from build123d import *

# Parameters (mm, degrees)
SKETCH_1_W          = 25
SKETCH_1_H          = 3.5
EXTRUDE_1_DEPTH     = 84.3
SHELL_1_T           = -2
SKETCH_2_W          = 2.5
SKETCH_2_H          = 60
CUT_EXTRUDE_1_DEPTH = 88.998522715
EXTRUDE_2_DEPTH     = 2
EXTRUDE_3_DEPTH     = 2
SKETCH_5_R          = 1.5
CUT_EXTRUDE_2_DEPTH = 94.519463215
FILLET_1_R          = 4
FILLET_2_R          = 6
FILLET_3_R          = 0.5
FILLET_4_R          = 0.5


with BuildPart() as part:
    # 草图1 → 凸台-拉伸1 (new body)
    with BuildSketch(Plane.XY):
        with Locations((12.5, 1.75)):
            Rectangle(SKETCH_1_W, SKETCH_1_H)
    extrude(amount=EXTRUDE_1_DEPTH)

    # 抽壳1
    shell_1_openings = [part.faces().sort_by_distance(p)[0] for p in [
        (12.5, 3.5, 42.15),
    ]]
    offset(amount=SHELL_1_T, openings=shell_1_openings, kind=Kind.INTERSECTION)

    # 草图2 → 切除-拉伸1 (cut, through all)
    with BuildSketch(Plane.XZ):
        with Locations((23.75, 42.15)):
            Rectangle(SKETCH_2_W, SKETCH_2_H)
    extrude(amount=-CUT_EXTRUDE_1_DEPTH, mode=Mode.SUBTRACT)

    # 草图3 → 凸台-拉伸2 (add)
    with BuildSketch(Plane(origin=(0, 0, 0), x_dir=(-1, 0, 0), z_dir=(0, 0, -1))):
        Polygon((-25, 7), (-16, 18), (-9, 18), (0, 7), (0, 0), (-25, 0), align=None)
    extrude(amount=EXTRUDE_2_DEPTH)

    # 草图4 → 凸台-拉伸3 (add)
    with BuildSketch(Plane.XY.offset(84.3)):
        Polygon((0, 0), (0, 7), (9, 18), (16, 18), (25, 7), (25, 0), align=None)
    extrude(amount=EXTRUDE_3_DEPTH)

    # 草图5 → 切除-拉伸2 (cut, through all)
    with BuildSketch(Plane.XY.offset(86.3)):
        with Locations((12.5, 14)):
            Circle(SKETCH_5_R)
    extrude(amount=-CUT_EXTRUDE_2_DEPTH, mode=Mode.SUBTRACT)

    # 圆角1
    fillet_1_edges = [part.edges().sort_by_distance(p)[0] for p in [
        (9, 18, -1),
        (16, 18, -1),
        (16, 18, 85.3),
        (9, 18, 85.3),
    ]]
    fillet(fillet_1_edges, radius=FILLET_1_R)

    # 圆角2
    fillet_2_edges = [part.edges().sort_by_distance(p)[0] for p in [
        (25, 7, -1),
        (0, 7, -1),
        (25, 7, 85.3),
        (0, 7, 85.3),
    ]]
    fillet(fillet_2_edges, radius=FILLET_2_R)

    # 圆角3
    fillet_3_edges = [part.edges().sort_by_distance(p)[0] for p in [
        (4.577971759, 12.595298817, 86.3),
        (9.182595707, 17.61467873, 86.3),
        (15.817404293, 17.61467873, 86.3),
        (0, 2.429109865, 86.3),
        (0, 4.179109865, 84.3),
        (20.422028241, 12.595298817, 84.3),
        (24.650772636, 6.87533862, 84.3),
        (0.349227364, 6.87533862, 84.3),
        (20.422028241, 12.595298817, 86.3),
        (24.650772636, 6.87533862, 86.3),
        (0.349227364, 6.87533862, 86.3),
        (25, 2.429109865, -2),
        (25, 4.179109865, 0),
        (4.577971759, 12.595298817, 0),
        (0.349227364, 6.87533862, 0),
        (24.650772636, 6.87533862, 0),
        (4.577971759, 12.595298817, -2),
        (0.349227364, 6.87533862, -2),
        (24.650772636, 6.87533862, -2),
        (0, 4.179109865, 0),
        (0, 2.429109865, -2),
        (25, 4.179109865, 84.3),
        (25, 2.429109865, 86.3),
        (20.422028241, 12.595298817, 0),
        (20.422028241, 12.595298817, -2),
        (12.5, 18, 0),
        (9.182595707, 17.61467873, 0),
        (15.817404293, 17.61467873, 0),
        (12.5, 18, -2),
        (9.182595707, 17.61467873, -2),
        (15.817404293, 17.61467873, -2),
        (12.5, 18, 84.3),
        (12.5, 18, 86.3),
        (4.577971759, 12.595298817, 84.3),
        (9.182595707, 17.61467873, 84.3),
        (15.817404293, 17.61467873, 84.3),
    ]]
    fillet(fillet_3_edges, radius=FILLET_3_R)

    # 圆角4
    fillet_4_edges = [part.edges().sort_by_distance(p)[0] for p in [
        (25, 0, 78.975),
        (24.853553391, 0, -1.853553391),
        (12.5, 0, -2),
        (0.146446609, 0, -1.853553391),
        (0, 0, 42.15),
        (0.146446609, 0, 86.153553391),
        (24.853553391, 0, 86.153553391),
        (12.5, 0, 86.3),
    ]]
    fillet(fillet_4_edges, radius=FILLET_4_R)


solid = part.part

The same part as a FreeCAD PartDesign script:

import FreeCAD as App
import Part
import Sketcher
from FreeCAD import Vector


def edges_at(feature, points):
    """Names of the edges that pass closest to the given points."""
    edges = feature.Shape.Edges
    near = lambda p: min(range(len(edges)), key=lambda i: edges[i].distToShape(Part.Vertex(*p))[0])
    return sorted({f"Edge{near(p) + 1}" for p in points})


def faces_at(feature, points):
    """Names of the faces that lie closest to the given points."""
    faces = feature.Shape.Faces
    near = lambda p: min(range(len(faces)), key=lambda i: faces[i].distToShape(Part.Vertex(*p))[0])
    return sorted({f"Face{near(p) + 1}" for p in points})

doc = App.newDocument("Part")
body = doc.addObject("PartDesign::Body", "Body")

# Sketch on XY plane
sketch1 = doc.addObject("Sketcher::SketchObject", "Sketch")
body.addObject(sketch1)
sketch1.AttachmentSupport = (doc.XY_Plane, [""])
sketch1.MapMode = "FlatFace"
sketch1.addGeometry([
    Part.LineSegment(Vector(0, 3.5, 0), Vector(0, 0, 0)),
    Part.LineSegment(Vector(0, 0, 0), Vector(25, 0, 0)),
    Part.LineSegment(Vector(25, 0, 0), Vector(25, 3.5, 0)),
    Part.LineSegment(Vector(25, 3.5, 0), Vector(0, 3.5, 0)),
], False)
sketch1.addConstraint([
    Sketcher.Constraint("Coincident", 0, 2, 1, 1),
    Sketcher.Constraint("Coincident", 1, 2, 2, 1),
    Sketcher.Constraint("Coincident", 2, 2, 3, 1),
    Sketcher.Constraint("Coincident", 3, 2, 0, 1),
    Sketcher.Constraint("Vertical", 0),
    Sketcher.Constraint("Horizontal", 1),
    Sketcher.Constraint("Vertical", 2),
    Sketcher.Constraint("Horizontal", 3),
    Sketcher.Constraint("Coincident", 0, 2, -1, 1),
    Sketcher.Constraint("DistanceX", 1, 1, 1, 2, 25.0),
    Sketcher.Constraint("DistanceY", 0, 2, 0, 1, 3.5),
])
pad1 = doc.addObject("PartDesign::Pad", "Pad")
body.addObject(pad1)
pad1.Profile = sketch1
pad1.Length = 84.3
doc.recompute()

thickness = doc.addObject("PartDesign::Thickness", "Thickness")
body.addObject(thickness)
thickness.Base = (pad1, faces_at(pad1, [(12.5, 3.5, 42.15)]))
thickness.Value = 2
thickness.Reversed = True
thickness.Join = "Intersection"

# Sketch on XZ plane
sketch2 = doc.addObject("Sketcher::SketchObject", "Sketch001")
body.addObject(sketch2)
sketch2.AttachmentSupport = (doc.XZ_Plane, [""])
sketch2.MapMode = "FlatFace"
sketch2.addGeometry([
    Part.LineSegment(Vector(22.5, 72.2, 0), Vector(22.5, 12.2, 0)),
    Part.LineSegment(Vector(22.5, 12.2, 0), Vector(25, 12.2, 0)),
    Part.LineSegment(Vector(25, 12.2, 0), Vector(25, 72.2, 0)),
    Part.LineSegment(Vector(25, 72.2, 0), Vector(22.5, 72.2, 0)),
], False)
sketch2.addConstraint([
    Sketcher.Constraint("Coincident", 0, 2, 1, 1),
    Sketcher.Constraint("Coincident", 1, 2, 2, 1),
    Sketcher.Constraint("Coincident", 2, 2, 3, 1),
    Sketcher.Constraint("Coincident", 3, 2, 0, 1),
    Sketcher.Constraint("Vertical", 0),
    Sketcher.Constraint("Horizontal", 1),
    Sketcher.Constraint("Vertical", 2),
    Sketcher.Constraint("Horizontal", 3),
    Sketcher.Constraint("DistanceY", 0, 2, 0, 1, 60.0),
    Sketcher.Constraint("DistanceX", 1, 1, 1, 2, 2.5),
    Sketcher.Constraint("DistanceX", -1, 1, 1, 2, 25.0),
    Sketcher.Constraint("DistanceY", -1, 1, 0, 2, 12.15),
])
pocket1 = doc.addObject("PartDesign::Pocket", "Pocket")
body.addObject(pocket1)
pocket1.Profile = sketch2
pocket1.Type = "ThroughAll"

# Sketch on XY plane
sketch3 = doc.addObject("Sketcher::SketchObject", "Sketch002")
body.addObject(sketch3)
sketch3.AttachmentSupport = (doc.XY_Plane, [""])
sketch3.MapMode = "FlatFace"
sketch3.addGeometry([
    Part.LineSegment(Vector(16, 18, 0), Vector(25, 7, 0)),  # 0
    Part.LineSegment(Vector(25, 7, 0), Vector(25, 0, 0)),  # 1
    Part.LineSegment(Vector(25, 0, 0), Vector(0, 0, 0)),  # 2
    Part.LineSegment(Vector(0, 0, 0), Vector(0, 7, 0)),  # 3
    Part.LineSegment(Vector(0, 7, 0), Vector(9, 18, 0)),  # 4
    Part.LineSegment(Vector(9, 18, 0), Vector(16, 18, 0)),  # 5
], False)
sketch3.addConstraint([
    Sketcher.Constraint("Coincident", 0, 2, 1, 1),
    Sketcher.Constraint("Coincident", 1, 2, 2, 1),
    Sketcher.Constraint("Coincident", 2, 2, 3, 1),
    Sketcher.Constraint("Coincident", 3, 2, 4, 1),
    Sketcher.Constraint("Coincident", 4, 2, 5, 1),
    Sketcher.Constraint("Coincident", 5, 2, 0, 1),
    Sketcher.Constraint("Vertical", 1),
    Sketcher.Constraint("Horizontal", 2),
    Sketcher.Constraint("Vertical", 3),
    Sketcher.Constraint("Horizontal", 5),
    Sketcher.Constraint("Coincident", 2, 2, -1, 1),
    Sketcher.Constraint("Horizontal", 0, 2, 3, 2),
    Sketcher.Constraint("Equal", 5, 1),
    Sketcher.Constraint("Equal", 0, 4),
    Sketcher.Constraint("DistanceX", 2, 2, 2, 1, 25.0),
    Sketcher.Constraint("DistanceX", 5, 1, 5, 2, 7.0),
    Sketcher.Constraint("DistanceY", -1, 1, 4, 2, 18.0),
])
pad2 = doc.addObject("PartDesign::Pad", "Pad001")
body.addObject(pad2)
pad2.Profile = sketch3
pad2.Length = 2
pad2.Reversed = True

# Sketch on XY plane
sketch4 = doc.addObject("Sketcher::SketchObject", "Sketch003")
body.addObject(sketch4)
sketch4.AttachmentSupport = (doc.XY_Plane, [""])
sketch4.MapMode = "FlatFace"
sketch4.AttachmentOffset = App.Placement(Vector(0, 0, 84.3), App.Rotation())
sketch4.addGeometry([
    Part.LineSegment(Vector(0, 7, 0), Vector(0, 0, 0)),  # 0
    Part.LineSegment(Vector(0, 0, 0), Vector(25, 0, 0)),  # 1
    Part.LineSegment(Vector(25, 0, 0), Vector(25, 7, 0)),  # 2
    Part.LineSegment(Vector(25, 7, 0), Vector(16, 18, 0)),  # 3
    Part.LineSegment(Vector(16, 18, 0), Vector(9, 18, 0)),  # 4
    Part.LineSegment(Vector(9, 18, 0), Vector(0, 7, 0)),  # 5
], False)
sketch4.addConstraint([
    Sketcher.Constraint("Coincident", 0, 2, 1, 1),
    Sketcher.Constraint("Coincident", 1, 2, 2, 1),
    Sketcher.Constraint("Coincident", 2, 2, 3, 1),
    Sketcher.Constraint("Coincident", 3, 2, 4, 1),
    Sketcher.Constraint("Coincident", 4, 2, 5, 1),
    Sketcher.Constraint("Coincident", 5, 2, 0, 1),
    Sketcher.Constraint("Vertical", 0),
    Sketcher.Constraint("Horizontal", 1),
    Sketcher.Constraint("Vertical", 2),
    Sketcher.Constraint("Horizontal", 4),
    Sketcher.Constraint("Coincident", 0, 2, -1, 1),
    Sketcher.Constraint("Horizontal", 2, 2, 5, 2),
    Sketcher.Constraint("Equal", 4, 0),
    Sketcher.Constraint("Equal", 3, 5),
    Sketcher.Constraint("DistanceX", 1, 1, 1, 2, 25.0),
    Sketcher.Constraint("DistanceX", 4, 2, 4, 1, 7.0),
    Sketcher.Constraint("DistanceY", -1, 1, 3, 2, 18.0),
])
pad3 = doc.addObject("PartDesign::Pad", "Pad002")
body.addObject(pad3)
pad3.Profile = sketch4
pad3.Length = 2

# Sketch on XY plane
sketch5 = doc.addObject("Sketcher::SketchObject", "Sketch004")
body.addObject(sketch5)
sketch5.AttachmentSupport = (doc.XY_Plane, [""])
sketch5.MapMode = "FlatFace"
sketch5.AttachmentOffset = App.Placement(Vector(0, 0, 86.3), App.Rotation())
sketch5.addGeometry(Part.Circle(Vector(12.5, 14, 0), Vector(0, 0, 1), 1.5), False)
sketch5.addConstraint([
    Sketcher.Constraint("Diameter", 0, 3.0),
    Sketcher.Constraint("DistanceY", -1, 1, 0, 3, 14.0),
    Sketcher.Constraint("DistanceX", -1, 1, 0, 3, 12.5),
])
pocket2 = doc.addObject("PartDesign::Pocket", "Pocket001")
body.addObject(pocket2)
pocket2.Profile = sketch5
pocket2.Type = "ThroughAll"
doc.recompute()

fillet = doc.addObject("PartDesign::Fillet", "Fillet")
body.addObject(fillet)
fillet.Base = (pocket2, edges_at(pocket2, [
    (9, 18, -1),
    (16, 18, -1),
    (16, 18, 85.3),
    (9, 18, 85.3),
]))
fillet.Radius = 4
doc.recompute()

fillet2 = doc.addObject("PartDesign::Fillet", "Fillet001")
body.addObject(fillet2)
fillet2.Base = (fillet, edges_at(fillet, [
    (25, 7, -1),
    (0, 7, -1),
    (25, 7, 85.3),
    (0, 7, 85.3),
]))
fillet2.Radius = 6
doc.recompute()

fillet3 = doc.addObject("PartDesign::Fillet", "Fillet002")
body.addObject(fillet3)
fillet3.Base = (fillet2, edges_at(fillet2, [
    (4.578, 12.595, 86.3),
    (9.183, 17.615, 86.3),
    (15.817, 17.615, 86.3),
    (0, 2.429, 86.3),
    (0, 4.179, 84.3),
    (20.422, 12.595, 84.3),
    (24.651, 6.875, 84.3),
    (0.349, 6.875, 84.3),
    (20.422, 12.595, 86.3),
    (24.651, 6.875, 86.3),
    (0.349, 6.875, 86.3),
    (25, 2.429, -2),
    (25, 4.179, 0),
    (4.578, 12.595, 0),
    (0.349, 6.875, 0),
    (24.651, 6.875, 0),
    (4.578, 12.595, -2),
    (0.349, 6.875, -2),
    (24.651, 6.875, -2),
    (0, 4.179, 0),
    (0, 2.429, -2),
    (25, 4.179, 84.3),
    (25, 2.429, 86.3),
    (20.422, 12.595, 0),
    (20.422, 12.595, -2),
    (12.5, 18, 0),
    (9.183, 17.615, 0),
    (15.817, 17.615, 0),
    (12.5, 18, -2),
    (9.183, 17.615, -2),
    (15.817, 17.615, -2),
    (12.5, 18, 84.3),
    (12.5, 18, 86.3),
    (4.578, 12.595, 84.3),
    (9.183, 17.615, 84.3),
    (15.817, 17.615, 84.3),
]))
fillet3.Radius = 0.5
doc.recompute()

fillet4 = doc.addObject("PartDesign::Fillet", "Fillet003")
body.addObject(fillet4)
fillet4.Base = (fillet3, edges_at(fillet3, [
    (25, 0, 78.975),
    (24.854, 0, -1.854),
    (12.5, 0, -2),
    (0.146, 0, -1.854),
    (0, 0, 42.15),
    (0.146, 0, 86.154),
    (24.854, 0, 86.154),
    (12.5, 0, 86.3),
]))
fillet4.Radius = 0.5

doc.recompute()
